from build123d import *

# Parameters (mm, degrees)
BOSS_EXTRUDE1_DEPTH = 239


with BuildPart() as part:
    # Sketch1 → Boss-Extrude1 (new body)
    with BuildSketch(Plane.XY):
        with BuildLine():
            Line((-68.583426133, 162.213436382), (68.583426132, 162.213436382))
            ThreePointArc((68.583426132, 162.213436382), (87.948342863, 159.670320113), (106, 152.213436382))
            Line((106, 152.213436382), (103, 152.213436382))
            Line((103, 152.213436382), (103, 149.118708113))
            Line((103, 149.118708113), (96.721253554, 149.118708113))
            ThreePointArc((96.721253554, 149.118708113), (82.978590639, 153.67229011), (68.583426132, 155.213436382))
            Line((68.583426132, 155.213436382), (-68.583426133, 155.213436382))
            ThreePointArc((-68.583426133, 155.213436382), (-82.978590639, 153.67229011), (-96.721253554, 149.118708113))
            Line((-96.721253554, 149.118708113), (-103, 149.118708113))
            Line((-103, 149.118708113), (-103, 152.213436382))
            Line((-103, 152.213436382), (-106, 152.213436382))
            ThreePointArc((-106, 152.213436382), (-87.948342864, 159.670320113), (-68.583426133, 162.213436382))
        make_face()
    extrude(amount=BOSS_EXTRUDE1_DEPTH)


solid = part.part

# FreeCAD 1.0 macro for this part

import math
import FreeCAD as App
import Part
import Sketcher
Q = App.Units.Quantity

doc = App.newDocument("Part")
body = doc.addObject("PartDesign::Body", "Body")

sketch1 = body.newObject("Sketcher::SketchObject", "Sketch")
sketch1.AttachmentSupport = (doc.getObject("XY_Plane"), [""])
sketch1.MapMode = "FlatFace"
sketch1.addGeometry([
    Part.LineSegment(App.Vector(68.6, 162.2, 0), App.Vector(-68.6, 162.2, 0)),
    Part.ArcOfCircle(Part.Circle(App.Vector(-68.6, 87.2, 0), App.Vector(0, 0, 1), 75), math.radians(90), math.radians(120)),
    Part.LineSegment(App.Vector(-106, 152.2, 0), App.Vector(-103, 152.2, 0)),
    Part.LineSegment(App.Vector(-103, 152.2, 0), App.Vector(-103, 149.1, 0)),
    Part.LineSegment(App.Vector(-103, 149.1, 0), App.Vector(-96.7, 149.1, 0)),
    Part.ArcOfCircle(Part.Circle(App.Vector(-68.6, 87.2, 0), App.Vector(0, 0, 1), 68), math.radians(90), math.radians(114)),
    Part.LineSegment(App.Vector(-68.6, 155.2, 0), App.Vector(68.6, 155.2, 0)),
    Part.ArcOfCircle(Part.Circle(App.Vector(68.6, 87.2, 0), App.Vector(0, 0, 1), 68), math.radians(66), math.radians(90)),
    Part.LineSegment(App.Vector(96.7, 149.1, 0), App.Vector(103, 149.1, 0)),
    Part.LineSegment(App.Vector(103, 149.1, 0), App.Vector(103, 152.2, 0)),
    Part.LineSegment(App.Vector(103, 152.2, 0), App.Vector(106, 152.2, 0)),
    Part.ArcOfCircle(Part.Circle(App.Vector(68.6, 87.2, 0), App.Vector(0, 0, 1), 75), math.radians(60), math.radians(90)),
], False)
sketch1.addConstraint([
    Sketcher.Constraint("Tangent", 0, 2, 1, 1),
    Sketcher.Constraint("Coincident", 1, 2, 2, 1),
    Sketcher.Constraint("Coincident", 2, 2, 3, 1),
    Sketcher.Constraint("Coincident", 3, 2, 4, 1),
    Sketcher.Constraint("Coincident", 4, 2, 5, 2),
    Sketcher.Constraint("Tangent", 5, 1, 6, 1),
    Sketcher.Constraint("Tangent", 6, 2, 7, 2),
    Sketcher.Constraint("Coincident", 7, 1, 8, 1),
    Sketcher.Constraint("Coincident", 8, 2, 9, 1),
    Sketcher.Constraint("Coincident", 9, 2, 10, 1),
    Sketcher.Constraint("Coincident", 10, 2, 11, 1),
    Sketcher.Constraint("Tangent", 11, 2, 0, 1),
    Sketcher.Constraint("Horizontal", 0),
    Sketcher.Constraint("Horizontal", 2),
    Sketcher.Constraint("Vertical", 3),
    Sketcher.Constraint("Horizontal", 4),
    Sketcher.Constraint("Horizontal", 6),
    Sketcher.Constraint("Horizontal", 8),
    Sketcher.Constraint("Vertical", 9),
    Sketcher.Constraint("Horizontal", 10),
    Sketcher.Constraint("Coincident", 5, 3, 1, 3),
    Sketcher.Constraint("Coincident", 11, 3, 7, 3),
    Sketcher.Constraint("Equal", 5, 7),
    Sketcher.Constraint("Symmetric", 4, 2, 7, 1, -2),
    Sketcher.Constraint("Symmetric", 2, 2, 9, 2, -2),
    Sketcher.Constraint("Radius", 1, Q("75 mm")),
    Sketcher.Constraint("Radius", 5, Q("68 mm")),
    Sketcher.Constraint("DistanceX", 2, 1, 2, 2, Q("3 mm")),
    Sketcher.Constraint("DistanceX", 1, 2, -1, 1, Q("106 mm")),
    Sketcher.Constraint("DistanceY", 1, 2, 0, 2, Q("10 mm")),
    Sketcher.Constraint("DistanceY", 3, 2, 3, 1, Q("3.094728 mm")),
    Sketcher.Constraint("DistanceY", -1, 1, 3, 2, Q("149.118708 mm")),
])
pad1 = body.newObject("PartDesign::Pad", "Pad")
pad1.Profile = sketch1
pad1.Length = 239

doc.recompute()
